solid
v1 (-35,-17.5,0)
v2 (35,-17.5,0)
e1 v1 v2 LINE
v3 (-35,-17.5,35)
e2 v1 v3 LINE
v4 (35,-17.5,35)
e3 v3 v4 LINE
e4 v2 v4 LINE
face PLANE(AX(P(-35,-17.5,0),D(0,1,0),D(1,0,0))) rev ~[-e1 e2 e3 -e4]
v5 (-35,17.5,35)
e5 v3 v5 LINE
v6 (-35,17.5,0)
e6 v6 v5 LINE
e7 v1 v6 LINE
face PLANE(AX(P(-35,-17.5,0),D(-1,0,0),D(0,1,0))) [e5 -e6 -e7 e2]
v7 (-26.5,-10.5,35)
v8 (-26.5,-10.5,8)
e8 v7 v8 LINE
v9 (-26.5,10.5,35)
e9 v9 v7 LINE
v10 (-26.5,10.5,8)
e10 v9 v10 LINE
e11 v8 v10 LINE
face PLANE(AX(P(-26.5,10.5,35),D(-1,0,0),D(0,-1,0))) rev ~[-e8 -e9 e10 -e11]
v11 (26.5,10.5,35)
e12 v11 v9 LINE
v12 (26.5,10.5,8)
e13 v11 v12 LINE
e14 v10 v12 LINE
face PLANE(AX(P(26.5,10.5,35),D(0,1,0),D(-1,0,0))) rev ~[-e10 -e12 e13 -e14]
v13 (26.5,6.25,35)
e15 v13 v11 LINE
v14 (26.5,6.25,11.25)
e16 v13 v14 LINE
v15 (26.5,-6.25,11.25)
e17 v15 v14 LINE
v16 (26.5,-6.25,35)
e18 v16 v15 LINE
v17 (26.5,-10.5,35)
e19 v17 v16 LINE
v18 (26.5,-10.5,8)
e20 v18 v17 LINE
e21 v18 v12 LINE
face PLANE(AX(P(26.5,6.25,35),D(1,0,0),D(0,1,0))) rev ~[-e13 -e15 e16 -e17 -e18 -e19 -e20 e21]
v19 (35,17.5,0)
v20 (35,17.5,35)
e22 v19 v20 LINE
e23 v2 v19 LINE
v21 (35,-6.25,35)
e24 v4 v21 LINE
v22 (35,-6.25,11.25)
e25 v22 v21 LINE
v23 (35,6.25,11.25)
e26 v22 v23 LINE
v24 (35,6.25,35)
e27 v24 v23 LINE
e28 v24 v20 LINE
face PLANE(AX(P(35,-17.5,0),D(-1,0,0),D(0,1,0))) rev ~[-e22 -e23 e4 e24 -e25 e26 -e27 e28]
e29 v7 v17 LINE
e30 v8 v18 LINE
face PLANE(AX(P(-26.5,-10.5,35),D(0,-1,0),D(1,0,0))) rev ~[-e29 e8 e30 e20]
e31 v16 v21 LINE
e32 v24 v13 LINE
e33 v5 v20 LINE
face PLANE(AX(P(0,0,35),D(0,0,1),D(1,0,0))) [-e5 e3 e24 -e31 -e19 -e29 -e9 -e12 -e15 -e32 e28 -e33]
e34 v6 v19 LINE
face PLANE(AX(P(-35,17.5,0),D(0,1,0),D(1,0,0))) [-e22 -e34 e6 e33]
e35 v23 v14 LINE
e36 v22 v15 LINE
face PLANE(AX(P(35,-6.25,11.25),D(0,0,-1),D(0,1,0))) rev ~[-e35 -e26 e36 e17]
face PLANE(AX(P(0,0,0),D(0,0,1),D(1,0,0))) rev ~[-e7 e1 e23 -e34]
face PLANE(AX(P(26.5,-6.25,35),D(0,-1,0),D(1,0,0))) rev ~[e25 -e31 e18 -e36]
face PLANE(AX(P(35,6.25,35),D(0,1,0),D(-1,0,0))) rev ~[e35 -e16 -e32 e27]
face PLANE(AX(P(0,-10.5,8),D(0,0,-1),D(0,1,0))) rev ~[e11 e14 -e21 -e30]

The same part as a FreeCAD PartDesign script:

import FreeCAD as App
import Part
import Sketcher


def add_polygon(sketch, points):
    """Adds a closed chain of lines whose ends are joined by coincident constraints."""
    first, n = sketch.GeometryCount, len(points)
    for a, b in zip(points, points[1:] + points[:1]):
        sketch.addGeometry(Part.LineSegment(App.Vector(*a, 0), App.Vector(*b, 0)), False)
    for i in range(n):
        sketch.addConstraint(Sketcher.Constraint("Coincident", first + i, 2, first + (i + 1) % n, 1))

doc = App.newDocument("Part")
body = doc.addObject("PartDesign::Body", "Body")

# Sketch on XY plane
sketch1 = body.newObject("Sketcher::SketchObject", "Sketch")
sketch1.AttachmentSupport = (doc.getObject("XY_Plane"), [""])
sketch1.MapMode = "FlatFace"
add_polygon(sketch1, [(-35, 18), (-35, -18), (35, -18), (35, 18)])  # lines 0-3
sketch1.addConstraint([
    Sketcher.Constraint("Vertical", 0),
    Sketcher.Constraint("Horizontal", 1),
    Sketcher.Constraint("Vertical", 2),
    Sketcher.Constraint("Horizontal", 3),
    Sketcher.Constraint("Symmetric", 0, 2, 2, 2, -1, 1),
    Sketcher.Constraint("DistanceX", 1, 1, 1, 2, 70.0),
    Sketcher.Constraint("DistanceY", 0, 2, 0, 1, 35.0),
])
pad1 = body.newObject("PartDesign::Pad", "Pad")
pad1.Profile = sketch1
pad1.Length = 35

# Sketch on YZ plane
sketch2 = body.newObject("Sketcher::SketchObject", "Sketch001")
sketch2.AttachmentSupport = (doc.getObject("YZ_Plane"), [""])
sketch2.MapMode = "FlatFace"
add_polygon(sketch2, [(-10, 27), (-10, 8), (10, 8), (10, 27)])  # lines 0-3
sketch2.addConstraint([
    Sketcher.Constraint("Vertical", 0),
    Sketcher.Constraint("Horizontal", 1),
    Sketcher.Constraint("Vertical", 2),
    Sketcher.Constraint("Horizontal", 3),
    Sketcher.Constraint("DistanceX", 1, 1, 1, 2, 21.0),
    Sketcher.Constraint("DistanceY", 0, 2, 0, 1, 19.0),
    Sketcher.Constraint("DistanceY", -1, 1, 0, 2, 8.0),
    Sketcher.Constraint("DistanceX", 0, 2, -1, 1, 10.5),
])
pocket1 = body.newObject("PartDesign::Pocket", "Pocket")
pocket1.Profile = sketch2
pocket1.Length = 53
pocket1.Midplane = True

# Sketch on YZ plane
sketch3 = body.newObject("Sketcher::SketchObject", "Sketch002")
sketch3.AttachmentSupport = (doc.getObject("YZ_Plane"), [""])
sketch3.MapMode = "FlatFace"
sketch3.AttachmentOffset = App.Placement(App.Vector(0, 0, 35), App.Rotation())
add_polygon(sketch3, [(-6, 24), (-6, 11), (6, 11), (6, 24)])  # lines 0-3
sketch3.addConstraint([
    Sketcher.Constraint("Vertical", 0),
    Sketcher.Constraint("Horizontal", 1),
    Sketcher.Constraint("Vertical", 2),
    Sketcher.Constraint("Horizontal", 3),
    Sketcher.Constraint("Equal", 3, 0),
    Sketcher.Constraint("DistanceX", 1, 1, 1, 2, 12.5),
    Sketcher.Constraint("DistanceX", 0, 2, -1, 1, 6.25),
    Sketcher.Constraint("DistanceY", -1, 1, 0, 2, 11.25),
])
pocket2 = body.newObject("PartDesign::Pocket", "Pocket001")
pocket2.Profile = sketch3
pocket2.Length = 10

# Sketch on XY plane
sketch4 = body.newObject("Sketcher::SketchObject", "Sketch003")
sketch4.AttachmentSupport = (doc.getObject("XY_Plane"), [""])
sketch4.MapMode = "FlatFace"
sketch4.AttachmentOffset = App.Placement(App.Vector(0, 0, 35), App.Rotation())
add_polygon(sketch4, [(26.5, 10.5), (-26.5, 10.5), (-26.5, -10.5), (26.5, -10.5), (26.5, -6.2), (35, -6.2), (35, 6.2), (26.5, 6.2)])  # lines 0-7
sketch4.addConstraint([
    Sketcher.Constraint("Horizontal", 0),
    Sketcher.Constraint("Vertical", 1),
    Sketcher.Constraint("Horizontal", 2),
    Sketcher.Constraint("Vertical", 3),
    Sketcher.Constraint("Horizontal", 4),
    Sketcher.Constraint("Vertical", 5),
    Sketcher.Constraint("Horizontal", 6),
    Sketcher.Constraint("Vertical", 7),
    Sketcher.Constraint("Symmetric", 0, 2, 2, 2, -1, 1),
    Sketcher.Constraint("Symmetric", 3, 2, 6, 2, -1),
    Sketcher.Constraint("DistanceX", 0, 2, 0, 1, 53.0),
    Sketcher.Constraint("DistanceY", 1, 2, 1, 1, 21.0),
    Sketcher.Constraint("DistanceX", 4, 1, 4, 2, 8.5),
    Sketcher.Constraint("DistanceY", 5, 1, 5, 2, 12.5),
])
pocket3 = body.newObject("PartDesign::Pocket", "Pocket002")
pocket3.Profile = sketch4
pocket3.Length = 12

doc.recompute()
